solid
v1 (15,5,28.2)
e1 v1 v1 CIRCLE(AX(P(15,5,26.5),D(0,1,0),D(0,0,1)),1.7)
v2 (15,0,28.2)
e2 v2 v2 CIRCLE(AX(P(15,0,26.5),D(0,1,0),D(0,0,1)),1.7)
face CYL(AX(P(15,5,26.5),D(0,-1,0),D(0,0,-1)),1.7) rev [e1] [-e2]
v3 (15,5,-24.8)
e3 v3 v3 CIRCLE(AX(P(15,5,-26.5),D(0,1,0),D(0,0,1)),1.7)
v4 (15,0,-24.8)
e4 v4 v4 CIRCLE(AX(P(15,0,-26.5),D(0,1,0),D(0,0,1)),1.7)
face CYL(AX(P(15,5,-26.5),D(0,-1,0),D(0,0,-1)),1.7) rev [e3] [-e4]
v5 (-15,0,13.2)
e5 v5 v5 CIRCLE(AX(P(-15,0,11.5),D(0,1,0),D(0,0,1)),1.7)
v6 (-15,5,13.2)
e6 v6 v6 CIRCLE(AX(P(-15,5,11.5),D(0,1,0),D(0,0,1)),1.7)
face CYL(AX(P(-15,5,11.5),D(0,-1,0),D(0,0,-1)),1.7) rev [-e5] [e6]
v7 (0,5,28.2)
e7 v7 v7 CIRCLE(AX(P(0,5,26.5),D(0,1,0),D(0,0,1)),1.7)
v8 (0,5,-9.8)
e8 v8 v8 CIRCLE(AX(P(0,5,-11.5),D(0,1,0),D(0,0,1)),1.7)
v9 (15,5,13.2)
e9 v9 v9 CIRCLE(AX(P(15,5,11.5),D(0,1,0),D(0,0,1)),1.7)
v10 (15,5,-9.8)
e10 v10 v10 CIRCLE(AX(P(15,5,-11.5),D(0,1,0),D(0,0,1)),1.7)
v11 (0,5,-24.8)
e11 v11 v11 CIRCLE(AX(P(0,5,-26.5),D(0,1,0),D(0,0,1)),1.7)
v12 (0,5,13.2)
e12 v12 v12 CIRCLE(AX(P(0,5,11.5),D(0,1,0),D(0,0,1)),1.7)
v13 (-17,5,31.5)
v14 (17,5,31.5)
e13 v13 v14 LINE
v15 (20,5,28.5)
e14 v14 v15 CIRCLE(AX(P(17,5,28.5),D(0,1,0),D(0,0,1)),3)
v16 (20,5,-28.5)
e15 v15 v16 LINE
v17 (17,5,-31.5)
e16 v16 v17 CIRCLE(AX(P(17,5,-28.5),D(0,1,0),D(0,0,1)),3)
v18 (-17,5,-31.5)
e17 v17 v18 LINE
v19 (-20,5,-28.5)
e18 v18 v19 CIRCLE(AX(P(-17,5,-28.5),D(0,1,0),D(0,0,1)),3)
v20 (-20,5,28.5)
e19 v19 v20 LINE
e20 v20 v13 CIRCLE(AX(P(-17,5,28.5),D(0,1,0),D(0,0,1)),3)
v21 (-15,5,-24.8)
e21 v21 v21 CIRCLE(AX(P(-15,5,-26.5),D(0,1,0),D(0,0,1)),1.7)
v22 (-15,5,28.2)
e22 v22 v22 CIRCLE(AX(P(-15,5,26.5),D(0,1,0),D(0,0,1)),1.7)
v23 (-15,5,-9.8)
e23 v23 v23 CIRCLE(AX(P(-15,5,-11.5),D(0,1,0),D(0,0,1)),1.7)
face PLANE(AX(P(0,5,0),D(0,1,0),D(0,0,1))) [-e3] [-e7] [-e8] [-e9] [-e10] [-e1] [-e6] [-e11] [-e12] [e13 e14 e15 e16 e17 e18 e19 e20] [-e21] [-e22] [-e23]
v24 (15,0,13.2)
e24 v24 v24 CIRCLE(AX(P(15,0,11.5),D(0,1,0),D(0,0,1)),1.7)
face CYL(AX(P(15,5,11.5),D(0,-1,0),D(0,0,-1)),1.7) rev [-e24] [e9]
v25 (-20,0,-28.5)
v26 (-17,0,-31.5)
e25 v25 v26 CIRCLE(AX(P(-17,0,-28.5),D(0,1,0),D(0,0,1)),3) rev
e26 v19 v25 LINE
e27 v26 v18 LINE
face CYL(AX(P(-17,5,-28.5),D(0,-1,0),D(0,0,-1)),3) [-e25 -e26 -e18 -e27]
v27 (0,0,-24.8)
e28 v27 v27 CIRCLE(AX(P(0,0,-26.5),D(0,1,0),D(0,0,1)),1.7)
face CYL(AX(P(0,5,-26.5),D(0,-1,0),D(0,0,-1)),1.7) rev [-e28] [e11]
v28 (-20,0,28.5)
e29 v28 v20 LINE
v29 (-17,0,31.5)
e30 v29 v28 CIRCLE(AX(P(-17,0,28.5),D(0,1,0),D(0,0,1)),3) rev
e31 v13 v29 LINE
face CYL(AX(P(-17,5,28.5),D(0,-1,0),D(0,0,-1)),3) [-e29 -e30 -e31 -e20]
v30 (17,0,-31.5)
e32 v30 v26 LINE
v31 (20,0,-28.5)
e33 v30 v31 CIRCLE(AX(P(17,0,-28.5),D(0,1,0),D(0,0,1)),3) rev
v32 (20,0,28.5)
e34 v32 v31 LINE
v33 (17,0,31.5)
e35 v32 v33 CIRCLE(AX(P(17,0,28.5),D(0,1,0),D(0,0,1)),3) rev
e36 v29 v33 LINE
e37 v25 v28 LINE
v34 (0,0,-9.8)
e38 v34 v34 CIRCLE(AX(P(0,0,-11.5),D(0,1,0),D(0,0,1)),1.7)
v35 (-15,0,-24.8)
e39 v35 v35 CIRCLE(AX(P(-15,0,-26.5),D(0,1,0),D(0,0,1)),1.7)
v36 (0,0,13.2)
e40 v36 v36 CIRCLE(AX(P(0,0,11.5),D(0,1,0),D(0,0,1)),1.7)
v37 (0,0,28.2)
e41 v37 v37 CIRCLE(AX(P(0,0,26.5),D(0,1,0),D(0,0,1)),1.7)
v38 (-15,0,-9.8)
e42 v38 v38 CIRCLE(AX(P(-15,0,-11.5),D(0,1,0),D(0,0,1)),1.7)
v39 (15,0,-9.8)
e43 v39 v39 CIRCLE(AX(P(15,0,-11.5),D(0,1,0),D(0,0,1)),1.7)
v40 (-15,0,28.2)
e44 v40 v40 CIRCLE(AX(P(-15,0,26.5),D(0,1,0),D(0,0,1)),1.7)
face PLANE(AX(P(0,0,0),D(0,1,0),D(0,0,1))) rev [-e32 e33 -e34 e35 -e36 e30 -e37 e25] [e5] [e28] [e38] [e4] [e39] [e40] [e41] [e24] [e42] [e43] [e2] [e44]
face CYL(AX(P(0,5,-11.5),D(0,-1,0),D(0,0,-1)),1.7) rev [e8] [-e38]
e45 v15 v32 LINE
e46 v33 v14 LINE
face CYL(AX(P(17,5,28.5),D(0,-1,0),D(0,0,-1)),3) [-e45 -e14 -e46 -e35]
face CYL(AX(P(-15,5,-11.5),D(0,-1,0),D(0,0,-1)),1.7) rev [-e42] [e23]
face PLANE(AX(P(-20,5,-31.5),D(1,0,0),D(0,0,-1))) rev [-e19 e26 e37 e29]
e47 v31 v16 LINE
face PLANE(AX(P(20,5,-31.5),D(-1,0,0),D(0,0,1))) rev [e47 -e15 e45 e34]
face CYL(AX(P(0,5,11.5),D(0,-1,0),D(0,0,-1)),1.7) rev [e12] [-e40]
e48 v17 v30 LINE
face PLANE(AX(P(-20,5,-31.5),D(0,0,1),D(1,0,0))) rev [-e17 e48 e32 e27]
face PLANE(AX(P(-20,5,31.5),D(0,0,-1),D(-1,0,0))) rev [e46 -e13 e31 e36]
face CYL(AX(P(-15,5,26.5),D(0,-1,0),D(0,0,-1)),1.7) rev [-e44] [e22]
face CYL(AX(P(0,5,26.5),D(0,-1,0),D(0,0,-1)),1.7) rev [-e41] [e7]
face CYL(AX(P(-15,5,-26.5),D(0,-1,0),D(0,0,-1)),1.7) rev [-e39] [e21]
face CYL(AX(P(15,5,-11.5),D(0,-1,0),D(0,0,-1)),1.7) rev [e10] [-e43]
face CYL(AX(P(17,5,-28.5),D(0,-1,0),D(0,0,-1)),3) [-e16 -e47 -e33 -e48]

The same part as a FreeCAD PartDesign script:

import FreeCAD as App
import Part
import Sketcher
from FreeCAD import Vector
Q = App.Units.Quantity


def edges_at(feature, points):
    """Names of the edges that pass closest to the given points."""
    edges = feature.Shape.Edges
    near = lambda p: min(range(len(edges)), key=lambda i: edges[i].distToShape(Part.Vertex(*p))[0])
    return sorted({f"Edge{near(p) + 1}" for p in points})

doc = App.newDocument("Part")
body = doc.addObject("PartDesign::Body", "Body")

# Sketch on XZ plane
sketch1 = body.newObject("Sketcher::SketchObject", "Sketch")
sketch1.AttachmentSupport = (doc.getObject("XZ_Plane"), [""])
sketch1.MapMode = "FlatFace"
sketch1.addGeometry([
    Part.LineSegment(Vector(-20, -31.5, 0), Vector(-20, 31.5, 0)),  # 0
    Part.LineSegment(Vector(-20, 31.5, 0), Vector(20, 31.5, 0)),  # 1
    Part.LineSegment(Vector(20, 31.5, 0), Vector(20, -31.5, 0)),  # 2
    Part.LineSegment(Vector(20, -31.5, 0), Vector(-20, -31.5, 0)),  # 3
    Part.Circle(Vector(-15, 26.5, 0), Vector(0, 0, 1), 1.7),  # 4
    Part.Circle(Vector(-15, 11.5, 0), Vector(0, 0, 1), 1.7),  # 5
    Part.Circle(Vector(0, 26.5, 0), Vector(0, 0, 1), 1.7),  # 6
    Part.Circle(Vector(15, 26.5, 0), Vector(0, 0, 1), 1.7),  # 7
    Part.Circle(Vector(0, 11.5, 0), Vector(0, 0, 1), 1.7),  # 8
    Part.Circle(Vector(15, 11.5, 0), Vector(0, 0, 1), 1.7),  # 9
    Part.Circle(Vector(-15, -11.5, 0), Vector(0, 0, 1), 1.7),  # 10
    Part.Circle(Vector(-15, -26.5, 0), Vector(0, 0, 1), 1.7),  # 11
    Part.Circle(Vector(0, -11.5, 0), Vector(0, 0, 1), 1.7),  # 12
    Part.Circle(Vector(15, -11.5, 0), Vector(0, 0, 1), 1.7),  # 13
    Part.Circle(Vector(0, -26.5, 0), Vector(0, 0, 1), 1.7),  # 14
    Part.Circle(Vector(15, -26.5, 0), Vector(0, 0, 1), 1.7),  # 15
], False)
sketch1.addConstraint([
    Sketcher.Constraint("Coincident", 0, 2, 1, 1),
    Sketcher.Constraint("Coincident", 1, 2, 2, 1),
    Sketcher.Constraint("Coincident", 2, 2, 3, 1),
    Sketcher.Constraint("Coincident", 3, 2, 0, 1),
    Sketcher.Constraint("Vertical", 0),
    Sketcher.Constraint("Horizontal", 1),
    Sketcher.Constraint("Vertical", 2),
    Sketcher.Constraint("Horizontal", 3),
    Sketcher.Constraint("Equal", 4, 5),
    Sketcher.Constraint("Equal", 5, 6),
    Sketcher.Constraint("Equal", 6, 7),
    Sketcher.Constraint("Equal", 7, 8),
    Sketcher.Constraint("Equal", 8, 9),
    Sketcher.Constraint("Equal", 9, 10),
    Sketcher.Constraint("Equal", 10, 11),
    Sketcher.Constraint("Equal", 11, 12),
    Sketcher.Constraint("Equal", 12, 13),
    Sketcher.Constraint("Equal", 13, 14),
    Sketcher.Constraint("Equal", 14, 15),
    Sketcher.Constraint("Symmetric", 9, 3, 10, 3, -1, 1),
    Sketcher.Constraint("Symmetric", 7, 3, 11, 3, -1, 1),
    Sketcher.Constraint("Symmetric", 8, 3, 12, 3, -1, 1),
    Sketcher.Constraint("Symmetric", 5, 3, 13, 3, -1, 1),
    Sketcher.Constraint("Symmetric", 6, 3, 14, 3, -1, 1),
    Sketcher.Constraint("Symmetric", 4, 3, 15, 3, -1, 1),
    Sketcher.Constraint("Symmetric", 0, 2, 2, 2, -1, 1),
    Sketcher.Constraint("Symmetric", 4, 3, 7, 3, -2),
    Sketcher.Constraint("Symmetric", 5, 3, 9, 3, -2),
    Sketcher.Constraint("PointOnObject", 6, 3, -2),
    Sketcher.Constraint("PointOnObject", 8, 3, -2),
    Sketcher.Constraint("Horizontal", 4, 3, 6, 3),
    Sketcher.Constraint("Horizontal", 5, 3, 8, 3),
    Sketcher.Constraint("Vertical", 4, 3, 5, 3),
    Sketcher.Constraint("Diameter", 4, Q("3.4 mm")),
    Sketcher.Constraint("DistanceX", 1, 1, 1, 2, Q("40 mm")),
    Sketcher.Constraint("DistanceY", 0, 1, 0, 2, Q("63 mm")),
    Sketcher.Constraint("DistanceX", 4, 3, -1, 1, Q("15 mm")),
    Sketcher.Constraint("DistanceY", 5, 3, 4, 3, Q("15 mm")),
    Sketcher.Constraint("DistanceY", 10, 3, 5, 3, Q("23 mm")),
])
pad1 = body.newObject("PartDesign::Pad", "Pad")
pad1.Profile = sketch1
pad1.Length = 5
pad1.Reversed = True
doc.recompute()

fillet = body.newObject("PartDesign::Fillet", "Fillet")
fillet.Base = (pad1, edges_at(pad1, [
    (20, 2.5, 31.5),
    (-20, 2.5, 31.5),
    (-20, 2.5, -31.5),
    (20, 2.5, -31.5),
]))
fillet.Radius = 3

doc.recompute()
